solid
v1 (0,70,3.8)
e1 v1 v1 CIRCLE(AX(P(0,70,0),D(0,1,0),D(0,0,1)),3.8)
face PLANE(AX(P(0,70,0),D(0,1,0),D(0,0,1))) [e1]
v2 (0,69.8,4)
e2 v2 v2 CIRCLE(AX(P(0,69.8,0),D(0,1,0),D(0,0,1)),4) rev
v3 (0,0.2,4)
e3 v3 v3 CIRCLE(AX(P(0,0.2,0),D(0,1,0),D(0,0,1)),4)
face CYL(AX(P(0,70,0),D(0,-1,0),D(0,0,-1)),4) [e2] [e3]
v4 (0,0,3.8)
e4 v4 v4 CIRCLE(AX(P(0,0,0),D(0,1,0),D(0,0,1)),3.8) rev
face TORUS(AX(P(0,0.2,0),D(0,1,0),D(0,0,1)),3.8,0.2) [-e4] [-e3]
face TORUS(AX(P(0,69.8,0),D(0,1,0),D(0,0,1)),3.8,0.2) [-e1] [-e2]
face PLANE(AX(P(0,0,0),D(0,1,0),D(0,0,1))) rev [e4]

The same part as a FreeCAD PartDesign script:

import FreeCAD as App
import Part
import Sketcher
from FreeCAD import Vector


def edges_at(feature, points):
    """Names of the edges that pass closest to the given points."""
    edges = feature.Shape.Edges
    near = lambda p: min(range(len(edges)), key=lambda i: edges[i].distToShape(Part.Vertex(*p))[0])
    return sorted({f"Edge{near(p) + 1}" for p in points})

doc = App.newDocument("Part")
body = doc.addObject("PartDesign::Body", "Body")

# Sketch on XZ plane
sketch1 = body.newObject("Sketcher::SketchObject", "Sketch")
sketch1.AttachmentSupport = (doc.getObject("XZ_Plane"), [""])
sketch1.MapMode = "FlatFace"
sketch1.addGeometry(Part.Circle(Vector(0, 0, 0), Vector(0, 0, 1), 4), False)
sketch1.addConstraint(Sketcher.Constraint("Coincident", 0, 3, -1, 1))
sketch1.addConstraint(Sketcher.Constraint("Diameter", 0, 8.0))
pad1 = body.newObject("PartDesign::Pad", "Pad")
pad1.Profile = sketch1
pad1.Length = 70
pad1.Reversed = True
doc.recompute()

fillet = body.newObject("PartDesign::Fillet", "Fillet")
fillet.Base = (pad1, edges_at(pad1, [(-4, 0, 0), (-4, 70, 0)]))
fillet.Radius = 0.2

doc.recompute()
